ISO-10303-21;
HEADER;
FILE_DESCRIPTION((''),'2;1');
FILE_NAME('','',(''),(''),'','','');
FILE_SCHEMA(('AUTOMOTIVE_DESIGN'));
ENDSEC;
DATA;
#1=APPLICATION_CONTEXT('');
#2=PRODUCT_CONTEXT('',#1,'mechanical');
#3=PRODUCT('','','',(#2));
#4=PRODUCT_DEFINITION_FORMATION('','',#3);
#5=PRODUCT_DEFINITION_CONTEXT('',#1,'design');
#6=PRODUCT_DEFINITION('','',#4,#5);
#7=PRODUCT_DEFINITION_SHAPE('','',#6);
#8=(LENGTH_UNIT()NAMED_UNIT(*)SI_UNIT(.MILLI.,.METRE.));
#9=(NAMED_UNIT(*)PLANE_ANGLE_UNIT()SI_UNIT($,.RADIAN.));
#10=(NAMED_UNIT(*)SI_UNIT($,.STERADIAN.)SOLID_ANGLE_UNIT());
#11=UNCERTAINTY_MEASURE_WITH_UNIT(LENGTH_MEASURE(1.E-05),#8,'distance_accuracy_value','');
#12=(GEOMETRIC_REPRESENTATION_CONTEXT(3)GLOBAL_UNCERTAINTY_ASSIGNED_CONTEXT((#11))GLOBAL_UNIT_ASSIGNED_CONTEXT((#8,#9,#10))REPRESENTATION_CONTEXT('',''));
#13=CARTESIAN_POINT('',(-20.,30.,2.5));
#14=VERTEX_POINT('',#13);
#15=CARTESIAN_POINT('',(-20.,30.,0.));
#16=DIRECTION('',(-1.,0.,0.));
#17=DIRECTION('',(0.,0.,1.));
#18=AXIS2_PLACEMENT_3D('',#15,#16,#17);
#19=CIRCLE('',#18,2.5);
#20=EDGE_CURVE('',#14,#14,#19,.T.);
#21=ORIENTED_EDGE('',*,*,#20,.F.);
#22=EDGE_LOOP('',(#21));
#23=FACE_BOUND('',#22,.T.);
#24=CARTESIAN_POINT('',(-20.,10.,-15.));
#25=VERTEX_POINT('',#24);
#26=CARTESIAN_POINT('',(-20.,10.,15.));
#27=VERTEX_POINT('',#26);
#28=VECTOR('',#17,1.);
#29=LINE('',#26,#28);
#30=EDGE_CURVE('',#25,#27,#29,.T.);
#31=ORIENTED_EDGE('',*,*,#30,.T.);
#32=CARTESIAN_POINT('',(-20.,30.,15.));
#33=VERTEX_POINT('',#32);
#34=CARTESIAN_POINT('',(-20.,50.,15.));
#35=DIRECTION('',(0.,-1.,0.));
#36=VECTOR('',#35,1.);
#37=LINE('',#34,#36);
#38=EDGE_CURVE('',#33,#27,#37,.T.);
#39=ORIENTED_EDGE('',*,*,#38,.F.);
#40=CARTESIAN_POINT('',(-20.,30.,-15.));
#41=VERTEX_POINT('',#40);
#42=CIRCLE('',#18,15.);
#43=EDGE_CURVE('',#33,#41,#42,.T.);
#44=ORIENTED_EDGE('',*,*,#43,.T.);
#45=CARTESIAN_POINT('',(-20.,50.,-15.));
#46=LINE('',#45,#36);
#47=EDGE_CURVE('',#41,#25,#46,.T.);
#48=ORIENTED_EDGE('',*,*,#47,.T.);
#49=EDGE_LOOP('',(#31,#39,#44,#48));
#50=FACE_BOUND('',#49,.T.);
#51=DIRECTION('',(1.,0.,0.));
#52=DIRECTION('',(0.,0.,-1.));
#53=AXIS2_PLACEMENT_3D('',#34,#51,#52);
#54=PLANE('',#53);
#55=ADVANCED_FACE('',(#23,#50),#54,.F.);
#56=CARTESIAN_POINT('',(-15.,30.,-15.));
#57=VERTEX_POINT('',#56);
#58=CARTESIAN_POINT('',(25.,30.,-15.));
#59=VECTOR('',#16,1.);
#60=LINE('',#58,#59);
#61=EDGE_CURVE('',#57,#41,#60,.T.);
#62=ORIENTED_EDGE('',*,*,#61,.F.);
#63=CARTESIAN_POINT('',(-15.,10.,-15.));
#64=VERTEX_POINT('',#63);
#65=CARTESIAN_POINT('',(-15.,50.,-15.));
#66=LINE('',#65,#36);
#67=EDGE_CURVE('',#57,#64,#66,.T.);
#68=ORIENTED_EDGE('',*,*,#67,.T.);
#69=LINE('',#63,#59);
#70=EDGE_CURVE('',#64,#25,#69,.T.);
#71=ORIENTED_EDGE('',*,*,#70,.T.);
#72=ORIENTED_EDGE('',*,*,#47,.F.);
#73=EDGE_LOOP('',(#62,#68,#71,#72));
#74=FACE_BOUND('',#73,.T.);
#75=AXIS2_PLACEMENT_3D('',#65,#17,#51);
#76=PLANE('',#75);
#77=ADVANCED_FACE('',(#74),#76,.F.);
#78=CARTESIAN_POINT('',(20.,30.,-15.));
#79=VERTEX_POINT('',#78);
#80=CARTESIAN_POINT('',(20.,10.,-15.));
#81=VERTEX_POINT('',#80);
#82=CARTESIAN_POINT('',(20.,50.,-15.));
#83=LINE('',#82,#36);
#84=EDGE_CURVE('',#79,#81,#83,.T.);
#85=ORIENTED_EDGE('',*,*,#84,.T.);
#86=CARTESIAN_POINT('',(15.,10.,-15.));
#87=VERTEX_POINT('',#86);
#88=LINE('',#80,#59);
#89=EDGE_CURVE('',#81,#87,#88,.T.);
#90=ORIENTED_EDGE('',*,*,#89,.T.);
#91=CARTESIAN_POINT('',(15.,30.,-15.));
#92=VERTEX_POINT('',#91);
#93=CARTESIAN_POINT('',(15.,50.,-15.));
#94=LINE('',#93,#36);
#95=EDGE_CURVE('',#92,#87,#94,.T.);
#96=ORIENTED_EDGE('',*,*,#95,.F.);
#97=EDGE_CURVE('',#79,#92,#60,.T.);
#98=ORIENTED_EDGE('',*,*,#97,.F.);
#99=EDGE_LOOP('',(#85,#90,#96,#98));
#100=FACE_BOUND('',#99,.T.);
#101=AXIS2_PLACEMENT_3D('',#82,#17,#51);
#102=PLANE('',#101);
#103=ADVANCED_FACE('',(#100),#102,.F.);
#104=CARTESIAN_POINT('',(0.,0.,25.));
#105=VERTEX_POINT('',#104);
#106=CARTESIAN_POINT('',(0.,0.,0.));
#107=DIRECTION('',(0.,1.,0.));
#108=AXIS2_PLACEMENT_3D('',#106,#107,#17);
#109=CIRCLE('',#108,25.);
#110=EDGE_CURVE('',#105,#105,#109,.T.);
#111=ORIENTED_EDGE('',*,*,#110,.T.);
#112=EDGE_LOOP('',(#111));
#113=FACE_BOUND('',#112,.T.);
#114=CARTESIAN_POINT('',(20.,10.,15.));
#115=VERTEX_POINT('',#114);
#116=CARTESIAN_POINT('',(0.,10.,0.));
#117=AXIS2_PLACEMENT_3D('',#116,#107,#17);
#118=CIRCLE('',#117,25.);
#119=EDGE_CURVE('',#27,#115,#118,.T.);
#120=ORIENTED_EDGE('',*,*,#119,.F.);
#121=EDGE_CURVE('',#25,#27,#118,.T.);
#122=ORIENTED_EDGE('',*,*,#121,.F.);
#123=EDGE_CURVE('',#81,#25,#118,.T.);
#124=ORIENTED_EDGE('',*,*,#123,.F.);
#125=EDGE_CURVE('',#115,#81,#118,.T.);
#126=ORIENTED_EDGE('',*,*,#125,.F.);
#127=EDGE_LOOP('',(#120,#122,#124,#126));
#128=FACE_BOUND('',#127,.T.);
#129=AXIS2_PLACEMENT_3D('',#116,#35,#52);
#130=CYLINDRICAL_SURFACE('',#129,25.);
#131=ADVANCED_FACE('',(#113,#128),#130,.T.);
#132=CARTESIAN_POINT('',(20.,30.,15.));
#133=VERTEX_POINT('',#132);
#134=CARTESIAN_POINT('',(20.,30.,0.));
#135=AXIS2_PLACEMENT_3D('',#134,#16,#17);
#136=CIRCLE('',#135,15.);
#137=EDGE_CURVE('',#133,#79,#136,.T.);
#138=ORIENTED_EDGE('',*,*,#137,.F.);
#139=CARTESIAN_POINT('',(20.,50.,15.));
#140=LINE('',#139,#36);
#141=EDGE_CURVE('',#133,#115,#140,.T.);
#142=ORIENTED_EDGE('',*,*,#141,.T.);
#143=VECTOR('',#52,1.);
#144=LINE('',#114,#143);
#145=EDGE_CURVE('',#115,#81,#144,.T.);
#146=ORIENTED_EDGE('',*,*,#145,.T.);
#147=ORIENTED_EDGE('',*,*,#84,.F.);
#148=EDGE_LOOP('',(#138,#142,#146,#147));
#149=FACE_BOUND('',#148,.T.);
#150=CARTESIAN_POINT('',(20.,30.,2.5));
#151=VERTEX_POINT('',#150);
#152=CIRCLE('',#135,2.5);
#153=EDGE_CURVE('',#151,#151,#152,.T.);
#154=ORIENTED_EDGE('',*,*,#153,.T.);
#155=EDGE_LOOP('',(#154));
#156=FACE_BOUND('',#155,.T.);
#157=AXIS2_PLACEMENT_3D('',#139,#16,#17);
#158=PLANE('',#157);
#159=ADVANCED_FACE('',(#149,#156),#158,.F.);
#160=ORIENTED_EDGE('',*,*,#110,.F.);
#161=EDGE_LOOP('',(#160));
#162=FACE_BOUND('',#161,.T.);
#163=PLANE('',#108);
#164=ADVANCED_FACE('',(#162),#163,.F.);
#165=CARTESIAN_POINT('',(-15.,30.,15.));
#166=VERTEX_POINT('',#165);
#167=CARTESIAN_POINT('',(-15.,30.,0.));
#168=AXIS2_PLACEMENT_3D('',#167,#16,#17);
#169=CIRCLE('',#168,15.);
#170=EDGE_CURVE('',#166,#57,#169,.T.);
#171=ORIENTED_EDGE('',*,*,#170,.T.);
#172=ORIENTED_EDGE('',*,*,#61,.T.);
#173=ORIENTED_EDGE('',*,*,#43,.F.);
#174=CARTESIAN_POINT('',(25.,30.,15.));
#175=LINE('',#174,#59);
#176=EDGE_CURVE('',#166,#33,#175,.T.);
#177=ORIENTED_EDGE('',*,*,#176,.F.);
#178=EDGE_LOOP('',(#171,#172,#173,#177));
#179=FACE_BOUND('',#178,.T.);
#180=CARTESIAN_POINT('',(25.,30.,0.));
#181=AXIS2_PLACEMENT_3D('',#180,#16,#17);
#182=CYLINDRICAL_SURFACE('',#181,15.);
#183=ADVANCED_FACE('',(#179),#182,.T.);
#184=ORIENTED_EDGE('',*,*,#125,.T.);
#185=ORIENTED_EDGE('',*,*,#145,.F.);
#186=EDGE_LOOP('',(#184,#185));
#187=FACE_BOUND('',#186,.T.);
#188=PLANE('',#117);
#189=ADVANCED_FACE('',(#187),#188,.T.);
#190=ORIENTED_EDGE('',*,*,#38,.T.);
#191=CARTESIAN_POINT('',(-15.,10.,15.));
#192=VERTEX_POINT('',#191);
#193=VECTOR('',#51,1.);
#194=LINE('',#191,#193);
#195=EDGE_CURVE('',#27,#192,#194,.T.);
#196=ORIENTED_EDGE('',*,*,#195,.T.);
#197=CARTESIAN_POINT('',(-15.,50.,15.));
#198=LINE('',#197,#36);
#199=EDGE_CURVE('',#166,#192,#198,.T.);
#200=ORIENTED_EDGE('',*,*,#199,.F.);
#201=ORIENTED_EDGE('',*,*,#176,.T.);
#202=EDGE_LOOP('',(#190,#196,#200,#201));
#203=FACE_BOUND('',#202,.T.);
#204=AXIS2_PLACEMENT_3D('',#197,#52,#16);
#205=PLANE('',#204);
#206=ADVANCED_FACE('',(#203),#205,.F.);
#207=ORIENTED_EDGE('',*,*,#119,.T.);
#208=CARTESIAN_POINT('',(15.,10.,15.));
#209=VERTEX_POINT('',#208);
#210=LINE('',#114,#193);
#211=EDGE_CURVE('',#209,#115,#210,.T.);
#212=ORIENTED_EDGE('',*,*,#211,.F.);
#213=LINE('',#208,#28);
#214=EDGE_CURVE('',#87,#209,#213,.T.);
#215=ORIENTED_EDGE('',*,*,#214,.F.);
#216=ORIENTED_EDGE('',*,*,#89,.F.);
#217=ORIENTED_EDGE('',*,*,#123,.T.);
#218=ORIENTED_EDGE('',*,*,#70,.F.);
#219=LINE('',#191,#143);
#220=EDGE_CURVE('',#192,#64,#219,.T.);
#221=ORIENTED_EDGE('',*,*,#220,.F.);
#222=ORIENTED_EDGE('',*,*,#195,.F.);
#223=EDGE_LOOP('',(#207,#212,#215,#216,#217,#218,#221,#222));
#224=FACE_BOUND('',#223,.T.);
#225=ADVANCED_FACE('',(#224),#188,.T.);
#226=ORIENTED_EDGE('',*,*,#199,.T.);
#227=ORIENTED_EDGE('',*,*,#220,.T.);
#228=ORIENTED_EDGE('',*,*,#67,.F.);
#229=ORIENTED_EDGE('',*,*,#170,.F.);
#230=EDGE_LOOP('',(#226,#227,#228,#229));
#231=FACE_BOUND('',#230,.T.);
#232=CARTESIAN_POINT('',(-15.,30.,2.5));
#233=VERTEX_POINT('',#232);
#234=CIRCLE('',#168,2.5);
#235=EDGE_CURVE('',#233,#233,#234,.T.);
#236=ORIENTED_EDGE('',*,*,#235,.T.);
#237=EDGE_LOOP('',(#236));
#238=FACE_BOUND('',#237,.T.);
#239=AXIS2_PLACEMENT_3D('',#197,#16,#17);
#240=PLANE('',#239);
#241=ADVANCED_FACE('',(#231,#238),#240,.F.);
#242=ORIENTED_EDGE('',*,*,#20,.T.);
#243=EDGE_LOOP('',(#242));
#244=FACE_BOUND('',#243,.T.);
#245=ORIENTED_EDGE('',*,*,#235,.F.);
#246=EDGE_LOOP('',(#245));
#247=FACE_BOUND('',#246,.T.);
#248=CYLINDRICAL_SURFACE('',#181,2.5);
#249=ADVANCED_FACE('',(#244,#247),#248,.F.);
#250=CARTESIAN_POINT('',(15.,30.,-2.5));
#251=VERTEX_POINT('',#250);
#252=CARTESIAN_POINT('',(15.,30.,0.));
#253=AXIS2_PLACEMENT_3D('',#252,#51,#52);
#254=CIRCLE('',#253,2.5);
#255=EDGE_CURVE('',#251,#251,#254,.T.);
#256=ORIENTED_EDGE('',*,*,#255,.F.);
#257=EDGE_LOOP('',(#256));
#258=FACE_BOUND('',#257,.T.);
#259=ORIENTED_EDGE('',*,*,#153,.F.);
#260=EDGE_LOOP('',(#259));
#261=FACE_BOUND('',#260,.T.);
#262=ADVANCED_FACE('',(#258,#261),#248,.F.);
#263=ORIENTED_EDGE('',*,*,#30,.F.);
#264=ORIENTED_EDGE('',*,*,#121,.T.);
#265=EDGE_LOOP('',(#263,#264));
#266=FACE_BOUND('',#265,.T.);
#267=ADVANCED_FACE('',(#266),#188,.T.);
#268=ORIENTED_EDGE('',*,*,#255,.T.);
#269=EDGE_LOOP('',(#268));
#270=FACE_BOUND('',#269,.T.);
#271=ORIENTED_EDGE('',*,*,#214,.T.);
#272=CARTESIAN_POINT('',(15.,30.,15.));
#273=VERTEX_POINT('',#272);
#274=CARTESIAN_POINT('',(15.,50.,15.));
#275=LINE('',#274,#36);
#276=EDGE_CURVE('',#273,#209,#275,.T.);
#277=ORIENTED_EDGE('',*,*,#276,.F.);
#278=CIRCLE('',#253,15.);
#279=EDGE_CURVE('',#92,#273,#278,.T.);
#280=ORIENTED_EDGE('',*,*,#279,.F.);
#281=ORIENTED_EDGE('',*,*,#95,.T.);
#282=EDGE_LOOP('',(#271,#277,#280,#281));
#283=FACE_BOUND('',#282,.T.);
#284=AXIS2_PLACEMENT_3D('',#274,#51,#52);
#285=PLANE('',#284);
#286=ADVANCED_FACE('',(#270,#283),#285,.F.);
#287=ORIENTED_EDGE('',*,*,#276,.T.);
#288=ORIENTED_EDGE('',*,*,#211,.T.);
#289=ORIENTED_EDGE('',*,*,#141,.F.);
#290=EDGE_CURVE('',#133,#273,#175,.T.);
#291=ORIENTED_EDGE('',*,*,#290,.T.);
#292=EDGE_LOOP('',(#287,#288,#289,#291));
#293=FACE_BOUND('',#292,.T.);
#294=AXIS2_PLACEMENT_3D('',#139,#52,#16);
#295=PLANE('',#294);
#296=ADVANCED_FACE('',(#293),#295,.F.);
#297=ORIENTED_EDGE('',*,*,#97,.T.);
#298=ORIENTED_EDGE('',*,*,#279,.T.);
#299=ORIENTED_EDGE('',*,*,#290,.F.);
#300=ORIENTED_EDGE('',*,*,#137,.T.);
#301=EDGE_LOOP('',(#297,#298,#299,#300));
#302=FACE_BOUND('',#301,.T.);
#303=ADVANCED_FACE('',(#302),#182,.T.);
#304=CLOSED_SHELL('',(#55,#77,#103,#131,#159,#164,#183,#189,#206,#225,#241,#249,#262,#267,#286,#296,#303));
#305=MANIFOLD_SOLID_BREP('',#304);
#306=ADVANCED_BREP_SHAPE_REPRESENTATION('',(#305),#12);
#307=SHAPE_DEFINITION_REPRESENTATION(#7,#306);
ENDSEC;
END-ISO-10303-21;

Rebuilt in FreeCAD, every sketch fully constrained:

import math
import FreeCAD as App
import Part
import Sketcher
from FreeCAD import Vector

doc = App.newDocument("Part")
body = doc.addObject("PartDesign::Body", "Body")

# Sketch on XZ plane
sketch1 = body.newObject("Sketcher::SketchObject", "Sketch")
sketch1.AttachmentSupport = (doc.getObject("XZ_Plane"), [""])
sketch1.MapMode = "FlatFace"
sketch1.addGeometry(Part.Circle(Vector(0, 0, 0), Vector(0, 0, 1), 25), False)
sketch1.addConstraint([
    Sketcher.Constraint("Coincident", 0, 3, -1, 1),
    Sketcher.Constraint("Diameter", 0, 50.0),
])
pad1 = body.newObject("PartDesign::Pad", "Pad")
pad1.Profile = sketch1
pad1.Length = 10
pad1.Reversed = True

# Sketch on XZ plane
sketch2 = body.newObject("Sketcher::SketchObject", "Sketch001")
sketch2.AttachmentSupport = (doc.getObject("XZ_Plane"), [""])
sketch2.MapMode = "FlatFace"
sketch2.AttachmentOffset = App.Placement(Vector(0, 0, -10), App.Rotation())
sketch2.addGeometry([
    Part.LineSegment(Vector(15, -15, 0), Vector(15, 15, 0)),  # 0
    Part.LineSegment(Vector(15, 15, 0), Vector(20, 15, 0)),  # 1
    Part.LineSegment(Vector(20, 15, 0), Vector(20, -15, 0)),  # 2
    Part.LineSegment(Vector(20, -15, 0), Vector(15, -15, 0)),  # 3
    Part.LineSegment(Vector(-20, -15, 0), Vector(-20, 15, 0)),  # 4
    Part.LineSegment(Vector(-20, 15, 0), Vector(-15, 15, 0)),  # 5
    Part.LineSegment(Vector(-15, 15, 0), Vector(-15, -15, 0)),  # 6
    Part.LineSegment(Vector(-15, -15, 0), Vector(-20, -15, 0)),  # 7
], False)
sketch2.addConstraint([
    Sketcher.Constraint("Coincident", 0, 2, 1, 1),
    Sketcher.Constraint("Coincident", 1, 2, 2, 1),
    Sketcher.Constraint("Coincident", 2, 2, 3, 1),
    Sketcher.Constraint("Coincident", 3, 2, 0, 1),
    Sketcher.Constraint("Coincident", 4, 2, 5, 1),
    Sketcher.Constraint("Coincident", 5, 2, 6, 1),
    Sketcher.Constraint("Coincident", 6, 2, 7, 1),
    Sketcher.Constraint("Coincident", 7, 2, 4, 1),
    Sketcher.Constraint("Vertical", 0),
    Sketcher.Constraint("Horizontal", 1),
    Sketcher.Constraint("Vertical", 2),
    Sketcher.Constraint("Horizontal", 3),
    Sketcher.Constraint("Vertical", 4),
    Sketcher.Constraint("Horizontal", 5),
    Sketcher.Constraint("Vertical", 6),
    Sketcher.Constraint("Horizontal", 7),
    Sketcher.Constraint("Symmetric", 2, 2, 4, 2, -1, 1),
    Sketcher.Constraint("Symmetric", 0, 2, 6, 2, -1, 1),
    Sketcher.Constraint("Horizontal", 1, 2, 4, 2),
    Sketcher.Constraint("DistanceX", 1, 1, 1, 2, 5.0),
    Sketcher.Constraint("DistanceY", 0, 1, 0, 2, 30.0),
    Sketcher.Constraint("DistanceX", -1, 1, 0, 2, 15.0),
])
pad2 = body.newObject("PartDesign::Pad", "Pad001")
pad2.Profile = sketch2
pad2.Length = 40
pad2.Reversed = True

# Sketch on YZ plane
sketch3 = body.newObject("Sketcher::SketchObject", "Sketch002")
sketch3.AttachmentSupport = (doc.getObject("YZ_Plane"), [""])
sketch3.MapMode = "FlatFace"
sketch3.AttachmentOffset = App.Placement(Vector(0, 0, -20), App.Rotation())
sketch3.addGeometry([
    Part.LineSegment(Vector(50, -15, 0), Vector(30, -15, 0)),  # 0
    Part.ArcOfCircle(Part.Circle(Vector(30, 0, 0), Vector(0, 0, 1), 15), math.radians(-90), math.radians(90)),  # 1
    Part.LineSegment(Vector(30, 15, 0), Vector(50, 15, 0)),  # 2
    Part.LineSegment(Vector(50, 15, 0), Vector(50, -15, 0)),  # 3
    Part.Circle(Vector(30, 0, 0), Vector(0, 0, 1), 2.5),  # 4
], False)
sketch3.addConstraint([
    Sketcher.Constraint("Tangent", 0, 2, 1, 1),
    Sketcher.Constraint("Tangent", 1, 2, 2, 1),
    Sketcher.Constraint("Coincident", 2, 2, 3, 1),
    Sketcher.Constraint("Coincident", 3, 2, 0, 1),
    Sketcher.Constraint("Horizontal", 0),
    Sketcher.Constraint("Horizontal", 2),
    Sketcher.Constraint("Vertical", 3),
    Sketcher.Constraint("Coincident", 4, 3, 1, 3),
    Sketcher.Constraint("PointOnObject", 1, 3, -1),
    Sketcher.Constraint("Diameter", 4, 5.0),
    Sketcher.Constraint("Radius", 1, 15.0),
    Sketcher.Constraint("DistanceX", 0, 2, 0, 1, 20.0),
    Sketcher.Constraint("DistanceX", -1, 1, 1, 3, 30.0),
])
pocket1 = body.newObject("PartDesign::Pocket", "Pocket")
pocket1.Profile = sketch3
pocket1.Type = "ThroughAll"
pocket1.Reversed = True

doc.recompute()
